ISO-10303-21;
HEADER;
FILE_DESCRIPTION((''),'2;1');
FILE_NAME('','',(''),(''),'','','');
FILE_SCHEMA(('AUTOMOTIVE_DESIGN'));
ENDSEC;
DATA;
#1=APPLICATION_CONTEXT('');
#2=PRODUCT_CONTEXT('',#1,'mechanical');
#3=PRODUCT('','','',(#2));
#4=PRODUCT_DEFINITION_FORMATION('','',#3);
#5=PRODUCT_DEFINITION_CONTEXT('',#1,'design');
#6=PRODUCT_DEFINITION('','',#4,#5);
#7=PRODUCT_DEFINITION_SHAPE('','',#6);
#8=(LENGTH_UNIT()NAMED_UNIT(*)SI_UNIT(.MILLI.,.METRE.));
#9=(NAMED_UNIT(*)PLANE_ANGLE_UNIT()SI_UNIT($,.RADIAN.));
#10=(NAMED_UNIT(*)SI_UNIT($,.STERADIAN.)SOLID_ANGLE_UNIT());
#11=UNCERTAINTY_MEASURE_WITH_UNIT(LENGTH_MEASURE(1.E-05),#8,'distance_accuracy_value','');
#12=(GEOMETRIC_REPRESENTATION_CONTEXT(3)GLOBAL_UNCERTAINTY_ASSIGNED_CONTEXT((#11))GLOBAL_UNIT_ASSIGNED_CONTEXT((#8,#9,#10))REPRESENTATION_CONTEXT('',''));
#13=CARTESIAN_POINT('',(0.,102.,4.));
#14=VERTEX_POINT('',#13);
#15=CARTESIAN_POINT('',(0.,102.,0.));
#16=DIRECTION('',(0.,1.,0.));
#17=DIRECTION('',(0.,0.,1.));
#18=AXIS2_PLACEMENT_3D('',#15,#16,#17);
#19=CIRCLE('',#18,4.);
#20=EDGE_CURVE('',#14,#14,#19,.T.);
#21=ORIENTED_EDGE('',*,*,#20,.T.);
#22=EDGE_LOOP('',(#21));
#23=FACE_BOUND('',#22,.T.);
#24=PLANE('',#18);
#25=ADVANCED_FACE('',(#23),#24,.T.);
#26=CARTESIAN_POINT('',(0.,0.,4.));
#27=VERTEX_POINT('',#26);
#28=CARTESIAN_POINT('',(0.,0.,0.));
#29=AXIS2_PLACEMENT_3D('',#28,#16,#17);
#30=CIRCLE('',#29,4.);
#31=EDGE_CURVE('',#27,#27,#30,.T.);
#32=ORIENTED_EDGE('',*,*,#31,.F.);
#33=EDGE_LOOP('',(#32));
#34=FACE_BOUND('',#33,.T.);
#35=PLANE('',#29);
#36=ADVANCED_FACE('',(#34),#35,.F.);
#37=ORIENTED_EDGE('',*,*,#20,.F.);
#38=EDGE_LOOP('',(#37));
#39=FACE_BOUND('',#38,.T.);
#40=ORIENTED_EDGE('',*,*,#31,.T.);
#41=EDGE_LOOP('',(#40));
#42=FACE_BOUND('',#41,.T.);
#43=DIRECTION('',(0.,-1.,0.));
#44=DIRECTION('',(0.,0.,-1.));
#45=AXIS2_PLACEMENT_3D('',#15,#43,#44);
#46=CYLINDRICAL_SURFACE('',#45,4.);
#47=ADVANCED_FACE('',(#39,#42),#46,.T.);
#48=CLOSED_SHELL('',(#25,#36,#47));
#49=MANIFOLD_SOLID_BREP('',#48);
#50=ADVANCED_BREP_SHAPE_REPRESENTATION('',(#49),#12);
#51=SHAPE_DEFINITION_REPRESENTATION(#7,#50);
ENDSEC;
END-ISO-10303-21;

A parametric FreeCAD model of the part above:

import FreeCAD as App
import Part
import Sketcher
Q = App.Units.Quantity

doc = App.newDocument("Part")
body = doc.addObject("PartDesign::Body", "Body")

sketch1 = body.newObject("Sketcher::SketchObject", "Sketch")
sketch1.AttachmentSupport = (doc.getObject("XZ_Plane"), [""])
sketch1.MapMode = "FlatFace"
sketch1.addGeometry(Part.Circle(App.Vector(0, 0, 0), App.Vector(0, 0, 1), 4), False)
sketch1.addConstraint(Sketcher.Constraint("Coincident", 0, 3, -1, 1))
sketch1.addConstraint(Sketcher.Constraint("Diameter", 0, Q("8 mm")))
pad1 = body.newObject("PartDesign::Pad", "Pad")
pad1.Profile = sketch1
pad1.Length = 102
pad1.Reversed = True

doc.recompute()
